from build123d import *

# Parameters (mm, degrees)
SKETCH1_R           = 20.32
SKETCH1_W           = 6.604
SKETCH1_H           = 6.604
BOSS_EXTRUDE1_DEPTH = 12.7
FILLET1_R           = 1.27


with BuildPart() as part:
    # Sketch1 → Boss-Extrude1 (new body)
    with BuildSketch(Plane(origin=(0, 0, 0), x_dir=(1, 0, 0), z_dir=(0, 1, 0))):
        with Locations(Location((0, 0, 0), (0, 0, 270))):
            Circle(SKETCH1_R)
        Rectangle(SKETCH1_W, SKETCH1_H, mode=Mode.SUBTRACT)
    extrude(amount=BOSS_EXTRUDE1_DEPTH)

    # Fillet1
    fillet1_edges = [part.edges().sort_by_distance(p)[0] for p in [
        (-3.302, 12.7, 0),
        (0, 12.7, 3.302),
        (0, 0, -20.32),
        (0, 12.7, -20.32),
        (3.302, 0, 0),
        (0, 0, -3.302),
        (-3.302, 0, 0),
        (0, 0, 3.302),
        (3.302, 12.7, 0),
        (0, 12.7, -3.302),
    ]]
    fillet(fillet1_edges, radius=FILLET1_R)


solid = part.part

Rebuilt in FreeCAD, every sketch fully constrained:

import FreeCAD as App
import Part
import Sketcher

V = App.Vector
Q = App.Units.Quantity


def edges_at(feature, points):
    """Names of the edges that pass closest to the given points."""
    edges = feature.Shape.Edges
    near = lambda p: min(range(len(edges)), key=lambda i: edges[i].distToShape(Part.Vertex(*p))[0])
    return sorted({f"Edge{near(p) + 1}" for p in points})

doc = App.newDocument("Part")
params = doc.addObject("Spreadsheet::Sheet", "Params")
for row, (alias, value) in enumerate([
    ("sketch1_diameter", "1.6 in"),
    ("sketch1_width", "0.26 in"),
    ("pad1_length", "0.5 in"),
    ("fillet_radius", "0.05 in"),
], start=1):
    params.set(f"A{row}", alias)
    params.set(f"B{row}", "=" + value)
    params.setAlias(f"B{row}", alias)

body = doc.addObject("PartDesign::Body", "Body")

sketch1 = body.newObject("Sketcher::SketchObject", "Sketch")
sketch1.AttachmentSupport = (doc.getObject("XZ_Plane"), [""])
sketch1.MapMode = "FlatFace"
sketch1.addGeometry(Part.Circle(V(0, 0, 0), V(0, 0, 1), 20), False)
sketch1.addGeometry(Part.LineSegment(V(3, 3, 0), V(-3, 3, 0)), False)
sketch1.addGeometry(Part.LineSegment(V(-3, 3, 0), V(-3, -3, 0)), False)
sketch1.addGeometry(Part.LineSegment(V(-3, -3, 0), V(3, -3, 0)), False)
sketch1.addGeometry(Part.LineSegment(V(3, -3, 0), V(3, 3, 0)), False)
sketch1.addConstraint(Sketcher.Constraint("Coincident", 1, 2, 2, 1))
sketch1.addConstraint(Sketcher.Constraint("Coincident", 2, 2, 3, 1))
sketch1.addConstraint(Sketcher.Constraint("Coincident", 3, 2, 4, 1))
sketch1.addConstraint(Sketcher.Constraint("Coincident", 4, 2, 1, 1))
sketch1.addConstraint(Sketcher.Constraint("Horizontal", 1))
sketch1.addConstraint(Sketcher.Constraint("Vertical", 2))
sketch1.addConstraint(Sketcher.Constraint("Horizontal", 3))
sketch1.addConstraint(Sketcher.Constraint("Vertical", 4))
sketch1.addConstraint(Sketcher.Constraint("Coincident", 0, 3, -1, 1))
sketch1.addConstraint(Sketcher.Constraint("Symmetric", 1, 2, 3, 2, -1, 1))
sketch1.addConstraint(Sketcher.Constraint("Equal", 3, 2))
sketch1.addConstraint(Sketcher.Constraint("Diameter", 0, Q("1.6 in")))
sketch1.addConstraint(Sketcher.Constraint("DistanceX", 1, 2, 1, 1, Q("0.26 in")))
sketch1.setExpression("Constraints[11]", "Params.sketch1_diameter")
sketch1.setExpression("Constraints[12]", "Params.sketch1_width")
pad1 = body.newObject("PartDesign::Pad", "Pad")
pad1.Profile = sketch1
pad1.setExpression("Length", "Params.pad1_length")
pad1.Reversed = True
doc.recompute()

fillet = body.newObject("PartDesign::Fillet", "Fillet")
fillet.Base = (pad1, edges_at(pad1, [
    (-3.302, 12.7, 0),
    (0, 12.7, 3.302),
    (0, 0, -20.32),
    (0, 12.7, -20.32),
    (3.302, 0, 0),
    (0, 0, -3.302),
    (-3.302, 0, 0),
    (0, 0, 3.302),
    (3.302, 12.7, 0),
    (0, 12.7, -3.302),
]))
fillet.setExpression("Radius", "Params.fillet_radius")

doc.recompute()
